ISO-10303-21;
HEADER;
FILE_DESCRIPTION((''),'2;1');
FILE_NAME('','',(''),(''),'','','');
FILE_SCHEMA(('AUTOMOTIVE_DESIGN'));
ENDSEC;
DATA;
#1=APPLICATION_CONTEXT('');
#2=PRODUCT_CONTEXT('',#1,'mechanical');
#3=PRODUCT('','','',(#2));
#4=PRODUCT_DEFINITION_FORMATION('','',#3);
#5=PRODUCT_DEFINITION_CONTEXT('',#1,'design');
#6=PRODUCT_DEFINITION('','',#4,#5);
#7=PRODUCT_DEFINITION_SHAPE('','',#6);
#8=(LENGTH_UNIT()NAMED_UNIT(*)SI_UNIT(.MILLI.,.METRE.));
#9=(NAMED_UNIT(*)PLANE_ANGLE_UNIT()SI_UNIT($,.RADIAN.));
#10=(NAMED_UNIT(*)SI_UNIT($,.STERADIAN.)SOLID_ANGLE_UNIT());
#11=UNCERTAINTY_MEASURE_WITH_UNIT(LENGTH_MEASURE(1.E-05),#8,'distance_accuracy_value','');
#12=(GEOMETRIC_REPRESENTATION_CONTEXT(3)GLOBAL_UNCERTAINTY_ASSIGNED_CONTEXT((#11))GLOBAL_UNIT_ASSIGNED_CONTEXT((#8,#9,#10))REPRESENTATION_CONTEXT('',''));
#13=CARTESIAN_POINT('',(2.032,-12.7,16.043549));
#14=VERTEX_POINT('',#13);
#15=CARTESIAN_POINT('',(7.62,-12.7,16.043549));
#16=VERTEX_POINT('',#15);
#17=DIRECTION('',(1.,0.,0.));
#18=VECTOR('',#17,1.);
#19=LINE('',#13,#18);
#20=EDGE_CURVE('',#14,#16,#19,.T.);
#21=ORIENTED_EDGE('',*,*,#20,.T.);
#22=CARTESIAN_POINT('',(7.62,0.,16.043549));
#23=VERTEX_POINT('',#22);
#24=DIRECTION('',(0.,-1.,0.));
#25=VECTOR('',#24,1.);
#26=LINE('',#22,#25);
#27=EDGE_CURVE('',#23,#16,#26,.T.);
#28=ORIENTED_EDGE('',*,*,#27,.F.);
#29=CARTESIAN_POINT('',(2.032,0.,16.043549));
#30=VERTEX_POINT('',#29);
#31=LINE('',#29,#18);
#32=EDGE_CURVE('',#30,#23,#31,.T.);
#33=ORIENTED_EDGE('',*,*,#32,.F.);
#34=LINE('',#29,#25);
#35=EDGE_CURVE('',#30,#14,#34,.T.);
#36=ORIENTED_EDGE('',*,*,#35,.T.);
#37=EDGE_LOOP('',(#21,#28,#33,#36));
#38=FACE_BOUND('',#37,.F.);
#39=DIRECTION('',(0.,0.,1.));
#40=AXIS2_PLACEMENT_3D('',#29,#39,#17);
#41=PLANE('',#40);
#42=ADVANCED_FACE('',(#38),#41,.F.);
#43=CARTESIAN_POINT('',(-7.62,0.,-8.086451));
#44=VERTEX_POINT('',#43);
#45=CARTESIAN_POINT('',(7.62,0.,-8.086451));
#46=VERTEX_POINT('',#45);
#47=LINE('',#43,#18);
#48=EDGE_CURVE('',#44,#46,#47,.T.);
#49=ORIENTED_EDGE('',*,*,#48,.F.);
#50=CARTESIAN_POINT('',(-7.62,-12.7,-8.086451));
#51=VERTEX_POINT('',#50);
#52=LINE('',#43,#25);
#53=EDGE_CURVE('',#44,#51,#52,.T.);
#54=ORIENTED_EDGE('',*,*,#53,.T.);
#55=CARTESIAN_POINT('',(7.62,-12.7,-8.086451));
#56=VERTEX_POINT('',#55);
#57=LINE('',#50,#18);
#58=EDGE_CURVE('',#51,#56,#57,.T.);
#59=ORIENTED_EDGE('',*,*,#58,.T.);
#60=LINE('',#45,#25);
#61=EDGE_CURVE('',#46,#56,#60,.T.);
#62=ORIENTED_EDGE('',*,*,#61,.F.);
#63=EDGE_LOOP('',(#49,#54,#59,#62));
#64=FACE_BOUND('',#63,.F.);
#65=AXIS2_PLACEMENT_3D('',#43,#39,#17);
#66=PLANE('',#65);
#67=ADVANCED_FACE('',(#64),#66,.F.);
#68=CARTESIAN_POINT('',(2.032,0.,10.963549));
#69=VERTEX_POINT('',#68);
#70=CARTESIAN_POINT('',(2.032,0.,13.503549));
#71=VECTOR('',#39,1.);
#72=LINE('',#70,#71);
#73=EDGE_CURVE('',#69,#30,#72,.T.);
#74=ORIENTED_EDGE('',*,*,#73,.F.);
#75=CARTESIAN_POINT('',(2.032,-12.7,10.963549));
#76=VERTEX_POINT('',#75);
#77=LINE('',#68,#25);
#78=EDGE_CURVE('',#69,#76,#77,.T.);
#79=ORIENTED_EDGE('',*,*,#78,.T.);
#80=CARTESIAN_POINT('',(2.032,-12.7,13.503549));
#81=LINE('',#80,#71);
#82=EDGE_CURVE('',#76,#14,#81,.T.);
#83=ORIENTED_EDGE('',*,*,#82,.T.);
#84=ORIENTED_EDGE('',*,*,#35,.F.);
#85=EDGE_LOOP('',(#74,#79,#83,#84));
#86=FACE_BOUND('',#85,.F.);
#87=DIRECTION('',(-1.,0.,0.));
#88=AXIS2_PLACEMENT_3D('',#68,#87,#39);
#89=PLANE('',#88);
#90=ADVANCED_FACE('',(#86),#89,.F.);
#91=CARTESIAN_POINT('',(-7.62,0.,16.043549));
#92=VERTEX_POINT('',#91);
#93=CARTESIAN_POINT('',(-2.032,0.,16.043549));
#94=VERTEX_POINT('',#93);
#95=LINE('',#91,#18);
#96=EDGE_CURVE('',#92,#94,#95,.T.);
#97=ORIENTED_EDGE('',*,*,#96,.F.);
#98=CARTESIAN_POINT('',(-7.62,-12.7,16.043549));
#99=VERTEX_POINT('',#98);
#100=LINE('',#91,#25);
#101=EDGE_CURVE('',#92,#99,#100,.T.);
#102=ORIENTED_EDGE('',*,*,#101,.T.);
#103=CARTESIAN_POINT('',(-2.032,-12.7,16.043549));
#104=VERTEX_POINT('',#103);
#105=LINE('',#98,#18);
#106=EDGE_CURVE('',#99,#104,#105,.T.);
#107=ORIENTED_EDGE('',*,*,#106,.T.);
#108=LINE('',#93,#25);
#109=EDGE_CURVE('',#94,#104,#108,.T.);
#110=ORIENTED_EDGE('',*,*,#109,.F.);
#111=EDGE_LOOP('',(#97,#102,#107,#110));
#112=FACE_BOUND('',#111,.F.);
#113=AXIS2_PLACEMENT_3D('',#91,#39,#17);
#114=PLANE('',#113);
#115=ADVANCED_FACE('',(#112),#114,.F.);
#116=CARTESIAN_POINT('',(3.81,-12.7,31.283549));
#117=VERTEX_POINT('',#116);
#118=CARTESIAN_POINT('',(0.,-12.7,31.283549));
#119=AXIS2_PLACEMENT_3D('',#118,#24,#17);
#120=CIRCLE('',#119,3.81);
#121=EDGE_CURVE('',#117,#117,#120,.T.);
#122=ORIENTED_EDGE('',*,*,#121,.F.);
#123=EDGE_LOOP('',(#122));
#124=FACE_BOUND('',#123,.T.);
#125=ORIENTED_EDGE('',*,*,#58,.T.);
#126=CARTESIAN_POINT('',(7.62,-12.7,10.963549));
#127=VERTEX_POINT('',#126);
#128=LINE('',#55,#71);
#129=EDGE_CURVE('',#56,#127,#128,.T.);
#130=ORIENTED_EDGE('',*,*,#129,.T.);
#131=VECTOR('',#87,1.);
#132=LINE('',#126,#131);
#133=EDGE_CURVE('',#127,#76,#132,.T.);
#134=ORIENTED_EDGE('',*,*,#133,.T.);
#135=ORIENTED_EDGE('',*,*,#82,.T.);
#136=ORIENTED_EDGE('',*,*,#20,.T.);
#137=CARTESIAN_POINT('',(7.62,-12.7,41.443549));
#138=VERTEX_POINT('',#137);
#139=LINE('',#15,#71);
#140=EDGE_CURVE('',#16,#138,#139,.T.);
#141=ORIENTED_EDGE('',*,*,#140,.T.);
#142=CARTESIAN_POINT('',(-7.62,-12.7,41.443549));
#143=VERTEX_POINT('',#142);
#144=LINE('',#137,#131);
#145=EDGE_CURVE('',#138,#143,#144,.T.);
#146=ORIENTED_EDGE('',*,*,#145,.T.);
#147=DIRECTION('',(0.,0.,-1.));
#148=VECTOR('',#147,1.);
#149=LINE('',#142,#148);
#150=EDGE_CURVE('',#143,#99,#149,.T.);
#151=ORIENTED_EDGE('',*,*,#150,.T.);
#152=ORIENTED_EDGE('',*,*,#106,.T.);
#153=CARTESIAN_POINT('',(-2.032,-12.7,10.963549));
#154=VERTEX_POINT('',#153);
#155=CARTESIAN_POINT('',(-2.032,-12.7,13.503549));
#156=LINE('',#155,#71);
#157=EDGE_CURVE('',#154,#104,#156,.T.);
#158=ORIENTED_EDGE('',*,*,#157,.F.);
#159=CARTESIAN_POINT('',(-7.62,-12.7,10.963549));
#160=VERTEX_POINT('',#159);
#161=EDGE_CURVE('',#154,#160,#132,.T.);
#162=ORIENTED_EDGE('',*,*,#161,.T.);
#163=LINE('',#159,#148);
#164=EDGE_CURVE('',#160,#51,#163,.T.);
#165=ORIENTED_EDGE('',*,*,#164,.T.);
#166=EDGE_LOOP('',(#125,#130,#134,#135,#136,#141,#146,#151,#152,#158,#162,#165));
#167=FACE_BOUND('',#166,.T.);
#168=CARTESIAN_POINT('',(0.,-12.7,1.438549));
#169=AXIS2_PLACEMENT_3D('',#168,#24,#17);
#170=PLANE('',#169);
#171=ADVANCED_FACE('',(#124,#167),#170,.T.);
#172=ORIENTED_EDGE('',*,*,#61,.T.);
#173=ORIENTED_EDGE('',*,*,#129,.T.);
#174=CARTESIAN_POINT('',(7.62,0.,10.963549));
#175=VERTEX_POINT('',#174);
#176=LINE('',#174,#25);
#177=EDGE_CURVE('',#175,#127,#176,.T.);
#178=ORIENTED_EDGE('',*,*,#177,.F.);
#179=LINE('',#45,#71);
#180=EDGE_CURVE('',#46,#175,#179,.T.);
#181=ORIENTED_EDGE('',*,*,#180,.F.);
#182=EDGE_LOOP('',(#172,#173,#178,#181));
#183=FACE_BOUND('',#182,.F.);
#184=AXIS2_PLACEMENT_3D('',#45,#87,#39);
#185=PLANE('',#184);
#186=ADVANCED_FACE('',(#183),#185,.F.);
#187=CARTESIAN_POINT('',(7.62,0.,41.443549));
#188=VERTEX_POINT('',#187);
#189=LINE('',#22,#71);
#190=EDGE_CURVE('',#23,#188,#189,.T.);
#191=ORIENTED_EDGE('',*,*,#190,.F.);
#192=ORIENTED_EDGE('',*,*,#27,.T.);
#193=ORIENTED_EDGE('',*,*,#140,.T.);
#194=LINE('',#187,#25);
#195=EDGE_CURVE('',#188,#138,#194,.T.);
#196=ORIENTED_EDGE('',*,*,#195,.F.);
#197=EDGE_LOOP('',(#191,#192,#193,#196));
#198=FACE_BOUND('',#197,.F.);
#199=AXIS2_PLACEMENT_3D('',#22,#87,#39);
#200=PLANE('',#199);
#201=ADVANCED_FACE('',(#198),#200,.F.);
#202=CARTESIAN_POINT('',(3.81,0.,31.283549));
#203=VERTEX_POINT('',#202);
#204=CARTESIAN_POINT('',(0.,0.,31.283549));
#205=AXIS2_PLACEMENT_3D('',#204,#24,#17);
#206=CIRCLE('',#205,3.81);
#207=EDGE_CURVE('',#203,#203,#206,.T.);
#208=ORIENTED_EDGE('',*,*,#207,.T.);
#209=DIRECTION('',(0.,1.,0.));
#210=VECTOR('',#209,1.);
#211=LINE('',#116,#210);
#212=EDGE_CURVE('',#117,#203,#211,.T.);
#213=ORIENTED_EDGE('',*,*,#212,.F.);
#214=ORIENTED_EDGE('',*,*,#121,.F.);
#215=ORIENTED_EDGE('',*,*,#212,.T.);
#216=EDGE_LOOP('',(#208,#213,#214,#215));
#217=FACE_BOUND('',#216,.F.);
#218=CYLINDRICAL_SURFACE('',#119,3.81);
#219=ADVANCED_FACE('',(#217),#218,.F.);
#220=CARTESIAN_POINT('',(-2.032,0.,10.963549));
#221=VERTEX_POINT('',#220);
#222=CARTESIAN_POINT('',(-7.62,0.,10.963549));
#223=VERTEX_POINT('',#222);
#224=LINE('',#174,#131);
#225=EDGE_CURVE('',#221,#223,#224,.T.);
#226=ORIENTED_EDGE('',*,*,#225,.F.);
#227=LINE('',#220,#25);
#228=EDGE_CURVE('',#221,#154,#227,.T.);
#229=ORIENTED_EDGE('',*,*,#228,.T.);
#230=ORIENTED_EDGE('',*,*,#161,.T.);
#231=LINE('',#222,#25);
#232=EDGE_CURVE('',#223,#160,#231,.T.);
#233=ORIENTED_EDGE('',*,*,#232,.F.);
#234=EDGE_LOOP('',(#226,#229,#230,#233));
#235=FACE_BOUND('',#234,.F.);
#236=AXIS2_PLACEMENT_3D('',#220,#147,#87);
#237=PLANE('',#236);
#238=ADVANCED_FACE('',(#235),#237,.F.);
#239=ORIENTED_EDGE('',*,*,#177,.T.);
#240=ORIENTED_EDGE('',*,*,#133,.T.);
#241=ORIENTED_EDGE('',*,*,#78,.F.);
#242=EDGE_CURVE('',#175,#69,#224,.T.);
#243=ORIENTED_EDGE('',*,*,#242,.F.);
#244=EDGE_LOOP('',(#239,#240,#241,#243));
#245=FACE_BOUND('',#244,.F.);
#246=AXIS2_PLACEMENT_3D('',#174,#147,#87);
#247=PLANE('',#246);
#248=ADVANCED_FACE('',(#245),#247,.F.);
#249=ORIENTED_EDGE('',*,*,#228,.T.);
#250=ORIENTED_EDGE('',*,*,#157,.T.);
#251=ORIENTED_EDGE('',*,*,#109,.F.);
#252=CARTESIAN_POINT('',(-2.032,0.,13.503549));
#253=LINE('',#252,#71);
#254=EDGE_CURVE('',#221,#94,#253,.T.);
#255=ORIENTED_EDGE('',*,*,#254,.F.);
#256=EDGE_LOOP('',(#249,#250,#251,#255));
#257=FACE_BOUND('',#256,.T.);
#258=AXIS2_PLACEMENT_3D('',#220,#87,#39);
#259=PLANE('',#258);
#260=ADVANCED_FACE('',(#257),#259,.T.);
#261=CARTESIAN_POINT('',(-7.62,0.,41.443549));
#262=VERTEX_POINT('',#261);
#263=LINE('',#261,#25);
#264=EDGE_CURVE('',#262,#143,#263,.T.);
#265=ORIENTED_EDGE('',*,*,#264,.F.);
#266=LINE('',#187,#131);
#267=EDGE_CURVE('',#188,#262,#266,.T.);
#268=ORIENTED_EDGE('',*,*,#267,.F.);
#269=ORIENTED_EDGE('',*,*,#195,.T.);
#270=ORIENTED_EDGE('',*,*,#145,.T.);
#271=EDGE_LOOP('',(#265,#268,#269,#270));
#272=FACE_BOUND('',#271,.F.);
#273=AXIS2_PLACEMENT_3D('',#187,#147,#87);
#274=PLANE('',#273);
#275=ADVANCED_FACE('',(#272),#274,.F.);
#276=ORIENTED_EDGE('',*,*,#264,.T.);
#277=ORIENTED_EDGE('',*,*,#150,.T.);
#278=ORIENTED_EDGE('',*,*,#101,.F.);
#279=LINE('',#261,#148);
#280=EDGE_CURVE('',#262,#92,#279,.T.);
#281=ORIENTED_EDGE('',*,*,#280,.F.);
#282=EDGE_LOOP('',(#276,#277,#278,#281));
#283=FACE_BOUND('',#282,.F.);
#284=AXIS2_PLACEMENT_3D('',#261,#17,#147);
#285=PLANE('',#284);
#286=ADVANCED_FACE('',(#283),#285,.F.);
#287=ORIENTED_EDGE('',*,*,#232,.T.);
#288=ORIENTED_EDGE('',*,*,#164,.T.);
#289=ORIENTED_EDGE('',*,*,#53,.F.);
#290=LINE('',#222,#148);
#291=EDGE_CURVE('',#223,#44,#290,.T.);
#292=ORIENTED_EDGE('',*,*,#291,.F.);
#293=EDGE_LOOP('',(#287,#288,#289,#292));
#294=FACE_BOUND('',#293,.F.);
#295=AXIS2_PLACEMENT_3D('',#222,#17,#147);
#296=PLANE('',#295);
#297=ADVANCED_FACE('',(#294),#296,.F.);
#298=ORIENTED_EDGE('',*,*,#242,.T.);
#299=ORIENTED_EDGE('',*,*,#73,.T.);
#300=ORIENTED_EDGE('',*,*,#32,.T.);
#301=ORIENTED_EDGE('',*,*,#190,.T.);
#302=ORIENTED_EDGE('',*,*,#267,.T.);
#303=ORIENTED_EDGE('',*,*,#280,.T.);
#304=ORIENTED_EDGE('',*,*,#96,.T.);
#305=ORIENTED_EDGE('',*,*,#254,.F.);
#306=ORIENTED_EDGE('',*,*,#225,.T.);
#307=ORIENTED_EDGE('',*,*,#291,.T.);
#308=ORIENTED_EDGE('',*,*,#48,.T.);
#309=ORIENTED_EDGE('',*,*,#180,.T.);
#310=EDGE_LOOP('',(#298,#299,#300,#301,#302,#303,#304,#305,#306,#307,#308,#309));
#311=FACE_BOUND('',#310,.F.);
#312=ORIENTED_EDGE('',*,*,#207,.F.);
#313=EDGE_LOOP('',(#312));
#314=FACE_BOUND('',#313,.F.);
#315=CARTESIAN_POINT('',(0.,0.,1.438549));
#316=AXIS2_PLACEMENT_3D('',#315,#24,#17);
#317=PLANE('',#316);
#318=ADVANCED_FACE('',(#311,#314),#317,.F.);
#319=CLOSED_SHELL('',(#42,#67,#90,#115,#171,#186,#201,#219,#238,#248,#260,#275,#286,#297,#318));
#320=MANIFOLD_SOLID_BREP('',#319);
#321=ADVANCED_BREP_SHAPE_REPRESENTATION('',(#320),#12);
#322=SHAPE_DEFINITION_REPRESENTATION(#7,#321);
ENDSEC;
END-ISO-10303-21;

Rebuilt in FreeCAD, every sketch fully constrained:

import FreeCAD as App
import Part
import Sketcher
Q = App.Units.Quantity


def add_polygon(sketch, points):
    """Adds a closed chain of lines whose ends are joined by coincident constraints."""
    first, n = sketch.GeometryCount, len(points)
    for a, b in zip(points, points[1:] + points[:1]):
        sketch.addGeometry(Part.LineSegment(App.Vector(*a, 0), App.Vector(*b, 0)), False)
    for i in range(n):
        sketch.addConstraint(Sketcher.Constraint("Coincident", first + i, 2, first + (i + 1) % n, 1))

doc = App.newDocument("Part")
body = doc.addObject("PartDesign::Body", "Body")

# Sketch on XZ plane
sketch1 = body.newObject("Sketcher::SketchObject", "Sketch")
sketch1.AttachmentSupport = (doc.getObject("XZ_Plane"), [""])
sketch1.MapMode = "FlatFace"
add_polygon(sketch1, [(-8, -8), (8, -8), (8, 11), (2, 11), (2, 16), (8, 16), (8, 41), (-8, 41), (-8, 16), (-2, 16), (-2, 11), (-8, 11)])  # lines 0-11
sketch1.addConstraint(Sketcher.Constraint("Horizontal", 0))
sketch1.addConstraint(Sketcher.Constraint("Vertical", 1))
sketch1.addConstraint(Sketcher.Constraint("Horizontal", 2))
sketch1.addConstraint(Sketcher.Constraint("Vertical", 3))
sketch1.addConstraint(Sketcher.Constraint("Horizontal", 4))
sketch1.addConstraint(Sketcher.Constraint("Vertical", 5))
sketch1.addConstraint(Sketcher.Constraint("Horizontal", 6))
sketch1.addConstraint(Sketcher.Constraint("Vertical", 7))
sketch1.addConstraint(Sketcher.Constraint("Horizontal", 8))
sketch1.addConstraint(Sketcher.Constraint("Vertical", 9))
sketch1.addConstraint(Sketcher.Constraint("Horizontal", 10))
sketch1.addConstraint(Sketcher.Constraint("Vertical", 11))
sketch1.addConstraint(Sketcher.Constraint("Symmetric", 4, 2, 7, 2, -2))
sketch1.addConstraint(Sketcher.Constraint("Symmetric", 2, 2, 9, 2, -2))
sketch1.addConstraint(Sketcher.Constraint("Vertical", 1, 2, 4, 2))
sketch1.addConstraint(Sketcher.Constraint("Vertical", 7, 2, 10, 2))
sketch1.addConstraint(Sketcher.Constraint("DistanceY", 5, 1, 5, 2, Q("1 in")))
sketch1.addConstraint(Sketcher.Constraint("DistanceX", 0, 1, 0, 2, Q("0.6 in")))
sketch1.addConstraint(Sketcher.Constraint("DistanceY", 3, 1, 3, 2, Q("0.2 in")))
sketch1.addConstraint(Sketcher.Constraint("DistanceX", 2, 2, 2, 1, Q("0.22 in")))
sketch1.addConstraint(Sketcher.Constraint("DistanceY", 1, 1, 1, 2, Q("0.75 in")))
sketch1.addConstraint(Sketcher.Constraint("DistanceY", 0, 2, -1, 1, Q("8.086451 mm")))
pad1 = body.newObject("PartDesign::Pad", "Pad")
pad1.Profile = sketch1
pad1.Length = Q("0.5 in")

# Sketch on XZ plane
sketch2 = body.newObject("Sketcher::SketchObject", "Sketch001")
sketch2.AttachmentSupport = (doc.getObject("XZ_Plane"), [""])
sketch2.MapMode = "FlatFace"
sketch2.AttachmentOffset = App.Placement(App.Vector(0, 0, 0.5 * 25.4), App.Rotation())
sketch2.addGeometry(Part.Circle(App.Vector(0, 31.3, 0), App.Vector(0, 0, 1), 3.8), False)
sketch2.addConstraint(Sketcher.Constraint("PointOnObject", 0, 3, -2))
sketch2.addConstraint(Sketcher.Constraint("Diameter", 0, Q("0.3 in")))
sketch2.addConstraint(Sketcher.Constraint("DistanceY", -1, 1, 0, 3, Q("31.283549 mm")))
pocket1 = body.newObject("PartDesign::Pocket", "Pocket")
pocket1.Profile = sketch2
pocket1.Length = Q("1 in")

doc.recompute()
